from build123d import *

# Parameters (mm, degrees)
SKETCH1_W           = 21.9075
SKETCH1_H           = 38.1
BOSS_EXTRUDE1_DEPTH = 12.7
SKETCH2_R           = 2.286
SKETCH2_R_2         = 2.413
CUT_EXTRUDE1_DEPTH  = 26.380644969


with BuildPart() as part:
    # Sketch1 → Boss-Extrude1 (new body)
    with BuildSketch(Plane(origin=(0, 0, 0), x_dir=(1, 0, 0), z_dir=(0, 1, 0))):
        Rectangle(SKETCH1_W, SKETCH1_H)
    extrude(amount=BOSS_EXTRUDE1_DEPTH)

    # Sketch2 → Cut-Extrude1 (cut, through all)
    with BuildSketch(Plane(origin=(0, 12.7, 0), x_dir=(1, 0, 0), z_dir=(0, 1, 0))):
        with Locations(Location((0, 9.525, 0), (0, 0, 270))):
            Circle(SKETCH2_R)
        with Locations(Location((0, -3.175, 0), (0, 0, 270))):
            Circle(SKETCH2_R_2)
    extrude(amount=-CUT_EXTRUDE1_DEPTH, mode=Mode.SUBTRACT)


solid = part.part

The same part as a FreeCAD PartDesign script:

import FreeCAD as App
import Part
import Sketcher
from FreeCAD import Vector
Q = App.Units.Quantity


def add_polygon(sketch, points):
    """Adds a closed chain of lines whose ends are joined by coincident constraints."""
    first, n = sketch.GeometryCount, len(points)
    for a, b in zip(points, points[1:] + points[:1]):
        sketch.addGeometry(Part.LineSegment(App.Vector(*a, 0), App.Vector(*b, 0)), False)
    for i in range(n):
        sketch.addConstraint(Sketcher.Constraint("Coincident", first + i, 2, first + (i + 1) % n, 1))

doc = App.newDocument("Part")
body = doc.addObject("PartDesign::Body", "Body")

# Sketch on XZ plane
sketch1 = body.newObject("Sketcher::SketchObject", "Sketch")
sketch1.AttachmentSupport = (doc.getObject("XZ_Plane"), [""])
sketch1.MapMode = "FlatFace"
add_polygon(sketch1, [(-11, -19), (-11, 19), (11, 19), (11, -19)])  # lines 0-3
sketch1.addConstraint([
    Sketcher.Constraint("Vertical", 0),
    Sketcher.Constraint("Horizontal", 1),
    Sketcher.Constraint("Vertical", 2),
    Sketcher.Constraint("Horizontal", 3),
    Sketcher.Constraint("Symmetric", 0, 2, 2, 2, -1, 1),
    Sketcher.Constraint("DistanceY", 0, 1, 0, 2, Q("1.5 in")),
    Sketcher.Constraint("DistanceX", 1, 1, 1, 2, Q("0.8625 in")),
])
pad1 = body.newObject("PartDesign::Pad", "Pad")
pad1.Profile = sketch1
pad1.Length = Q("0.5 in")
pad1.Reversed = True

# Sketch on XZ plane
sketch2 = body.newObject("Sketcher::SketchObject", "Sketch001")
sketch2.AttachmentSupport = (doc.getObject("XZ_Plane"), [""])
sketch2.MapMode = "FlatFace"
sketch2.AttachmentOffset = App.Placement(Vector(0, 0, -0.5 * 25.4), App.Rotation())
sketch2.addGeometry([
    Part.Circle(Vector(0, -9.5, 0), Vector(0, 0, 1), 2.3),
    Part.Circle(Vector(0, 3.2, 0), Vector(0, 0, 1), 2.4),
], False)
sketch2.addConstraint([
    Sketcher.Constraint("PointOnObject", 0, 3, -2),
    Sketcher.Constraint("PointOnObject", 1, 3, -2),
    Sketcher.Constraint("Diameter", 0, Q("0.18 in")),
    Sketcher.Constraint("Diameter", 1, Q("0.19 in")),
    Sketcher.Constraint("DistanceY", 0, 3, 1, 3, Q("0.5 in")),
    Sketcher.Constraint("DistanceY", 0, 3, -1, 1, Q("0.375 in")),
])
pocket1 = body.newObject("PartDesign::Pocket", "Pocket")
pocket1.Profile = sketch2
pocket1.Type = "ThroughAll"
pocket1.Reversed = True

doc.recompute()
